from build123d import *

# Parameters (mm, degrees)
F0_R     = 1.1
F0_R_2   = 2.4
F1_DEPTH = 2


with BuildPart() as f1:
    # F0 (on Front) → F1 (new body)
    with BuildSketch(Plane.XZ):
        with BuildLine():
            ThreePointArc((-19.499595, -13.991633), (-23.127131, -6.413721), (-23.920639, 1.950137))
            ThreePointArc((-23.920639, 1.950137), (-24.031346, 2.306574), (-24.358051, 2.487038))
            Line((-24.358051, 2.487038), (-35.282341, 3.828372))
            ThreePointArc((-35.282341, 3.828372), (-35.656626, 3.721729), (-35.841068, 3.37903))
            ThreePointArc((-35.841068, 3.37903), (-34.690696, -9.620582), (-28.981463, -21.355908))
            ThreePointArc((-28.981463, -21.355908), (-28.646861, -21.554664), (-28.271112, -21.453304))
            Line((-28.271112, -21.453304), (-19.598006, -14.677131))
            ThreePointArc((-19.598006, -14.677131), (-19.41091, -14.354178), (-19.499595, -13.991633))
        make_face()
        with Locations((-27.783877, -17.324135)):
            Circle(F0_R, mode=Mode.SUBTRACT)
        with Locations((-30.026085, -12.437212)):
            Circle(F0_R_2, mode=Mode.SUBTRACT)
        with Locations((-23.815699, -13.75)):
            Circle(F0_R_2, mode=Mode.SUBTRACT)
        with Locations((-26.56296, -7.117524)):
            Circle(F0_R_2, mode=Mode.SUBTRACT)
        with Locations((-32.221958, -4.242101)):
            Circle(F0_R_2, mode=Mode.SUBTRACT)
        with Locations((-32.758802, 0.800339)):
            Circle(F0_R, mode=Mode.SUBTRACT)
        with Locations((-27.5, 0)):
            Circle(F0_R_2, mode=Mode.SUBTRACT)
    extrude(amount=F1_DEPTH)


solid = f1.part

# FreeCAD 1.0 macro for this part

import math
import FreeCAD as App
import Part
import Sketcher
from FreeCAD import Vector
Q = App.Units.Quantity

doc = App.newDocument("Part")
body = doc.addObject("PartDesign::Body", "Body")

# Sketch on XZ plane
sketch1 = doc.addObject("Sketcher::SketchObject", "Sketch")
body.addObject(sketch1)
sketch1.AttachmentSupport = (doc.XZ_Plane, [""])
sketch1.MapMode = "FlatFace"
sketch1.addGeometry(Part.ArcOfCircle(Part.Circle(Vector(-0.000001, 0, 0), Vector(0, 0, 1), 23.999999), math.radians(175.339252), math.radians(215.660747)), False)
sketch1.addGeometry(Part.ArcOfCircle(Part.Circle(Vector(-24.418986, 1.990765, 0), Vector(0, 0, 1), 0.5), math.radians(-4.660716), math.radians(82.999965)), False)
sketch1.addGeometry(Part.LineSegment(Vector(-24.358051, 2.487038, 0), Vector(-35.282341, 3.828372, 0)), False)
sketch1.addGeometry(Part.ArcOfCircle(Part.Circle(Vector(-35.343276, 3.332099, 0), Vector(0, 0, 1), 0.499999), math.radians(82.999972), math.radians(174.614222)), False)
sketch1.addGeometry(Part.ArcOfCircle(Part.Circle(Vector(0.000003, 0.000001, 0), Vector(0, 0, 1), 36.000003), math.radians(174.61418), math.radians(216.385818)), False)
sketch1.addGeometry(Part.ArcOfCircle(Part.Circle(Vector(-28.578942, -21.059298, 0), Vector(0, 0, 1), 0.5), math.radians(-143.61421), math.radians(-52.000043)), False)
sketch1.addGeometry(Part.LineSegment(Vector(-28.271112, -21.453304, 0), Vector(-19.598006, -14.677131, 0)), False)
sketch1.addGeometry(Part.ArcOfCircle(Part.Circle(Vector(-19.905834, -14.283126, 0), Vector(0, 0, 1), 0.499998), math.radians(-52.000236), math.radians(35.66096)), False)
sketch1.addGeometry(Part.Circle(Vector(-30.026085, -12.437212, 0), Vector(0, 0, 1), 2.4), False)
sketch1.addGeometry(Part.Circle(Vector(-27.783877, -17.324135, 0), Vector(0, 0, 1), 1.1), False)
sketch1.addGeometry(Part.Circle(Vector(-23.815699, -13.75, 0), Vector(0, 0, 1), 2.4), False)
sketch1.addGeometry(Part.Circle(Vector(-32.221958, -4.242101, 0), Vector(0, 0, 1), 2.4), False)
sketch1.addGeometry(Part.Circle(Vector(-32.758802, 0.800339, 0), Vector(0, 0, 1), 1.1), False)
sketch1.addGeometry(Part.Circle(Vector(-26.56296, -7.117524, 0), Vector(0, 0, 1), 2.4), False)
sketch1.addGeometry(Part.Circle(Vector(-27.5, 0, 0), Vector(0, 0, 1), 2.4), False)
sketch1.addConstraint(Sketcher.Constraint("Tangent", 0, 1, 1, 1))
sketch1.addConstraint(Sketcher.Constraint("Tangent", 1, 2, 2, 1))
sketch1.addConstraint(Sketcher.Constraint("Tangent", 2, 2, 3, 1))
sketch1.addConstraint(Sketcher.Constraint("Tangent", 3, 2, 4, 1))
sketch1.addConstraint(Sketcher.Constraint("Tangent", 4, 2, 5, 1))
sketch1.addConstraint(Sketcher.Constraint("Tangent", 5, 2, 6, 1))
sketch1.addConstraint(Sketcher.Constraint("Coincident", 6, 2, 7, 1))
sketch1.addConstraint(Sketcher.Constraint("Coincident", 7, 2, 0, 2))
sketch1.addConstraint(Sketcher.Constraint("Coincident", 0, 3, -1, 1))
sketch1.addConstraint(Sketcher.Constraint("Coincident", 4, 3, -1, 1))
sketch1.addConstraint(Sketcher.Constraint("Equal", 1, 3))
sketch1.addConstraint(Sketcher.Constraint("Equal", 3, 5))
sketch1.addConstraint(Sketcher.Constraint("Equal", 5, 7))
sketch1.addConstraint(Sketcher.Constraint("Equal", 8, 10))
sketch1.addConstraint(Sketcher.Constraint("Equal", 10, 11))
sketch1.addConstraint(Sketcher.Constraint("Equal", 9, 12))
sketch1.addConstraint(Sketcher.Constraint("Equal", 11, 13))
sketch1.addConstraint(Sketcher.Constraint("Equal", 13, 14))
sketch1.addConstraint(Sketcher.Constraint("PointOnObject", 14, 3, -1))
sketch1.addConstraint(Sketcher.Constraint("Equal", 2, 6))
sketch1.addConstraint(Sketcher.Constraint("Radius", 0, Q("23.999999 mm")))
sketch1.addConstraint(Sketcher.Constraint("Diameter", 8, Q("4.8 mm")))
sketch1.addConstraint(Sketcher.Constraint("Diameter", 9, Q("2.2 mm")))
sketch1.addConstraint(Sketcher.Constraint("Radius", 1, Q("0.5 mm")))
sketch1.addConstraint(Sketcher.Constraint("Angle", 2, Q("173.000001 deg")))
sketch1.addConstraint(Sketcher.Constraint("Angle", 6, Q("38 deg")))
sketch1.addConstraint(Sketcher.Constraint("DistanceX", 14, 3, -1, 1, Q("27.5 mm")))
sketch1.addConstraint(Sketcher.Constraint("DistanceY", 10, 3, -1, 1, Q("13.75 mm")))
sketch1.addConstraint(Sketcher.Constraint("Radius", 4, Q("36.000003 mm")))
sketch1.addConstraint(Sketcher.Constraint("DistanceX", 11, 3, 13, 3, Q("5.658998 mm")))
sketch1.addConstraint(Sketcher.Constraint("DistanceY", -1, 1, 3, 3, Q("3.332099 mm")))
sketch1.addConstraint(Sketcher.Constraint("DistanceY", 5, 3, -1, 1, Q("21.059298 mm")))
sketch1.addConstraint(Sketcher.Constraint("DistanceX", 10, 3, -1, 1, Q("23.815699 mm")))
sketch1.addConstraint(Sketcher.Constraint("DistanceY", 11, 3, -1, 1, Q("4.242101 mm")))
sketch1.addConstraint(Sketcher.Constraint("DistanceX", 8, 3, 1, 3, Q("5.607099 mm")))
sketch1.addConstraint(Sketcher.Constraint("DistanceY", 9, 3, 1, 3, Q("19.3149 mm")))
sketch1.addConstraint(Sketcher.Constraint("DistanceX", 3, 3, 9, 3, Q("7.559399 mm")))
sketch1.addConstraint(Sketcher.Constraint("DistanceY", 7, 3, 13, 3, Q("7.165602 mm")))
sketch1.addConstraint(Sketcher.Constraint("DistanceY", 12, 3, 0, 1, Q("1.149798 mm")))
sketch1.addConstraint(Sketcher.Constraint("DistanceY", 9, 3, 7, 2, Q("3.332502 mm")))
sketch1.addConstraint(Sketcher.Constraint("DistanceX", 13, 3, -1, 1, Q("26.56296 mm")))
sketch1.addConstraint(Sketcher.Constraint("DistanceY", 8, 3, 3, 3, Q("15.769311 mm")))
sketch1.addConstraint(Sketcher.Constraint("DistanceX", 12, 3, 1, 2, Q("8.400751 mm")))
pad1 = doc.addObject("PartDesign::Pad", "Pad")
body.addObject(pad1)
pad1.Profile = sketch1
pad1.Length = 2

doc.recompute()
